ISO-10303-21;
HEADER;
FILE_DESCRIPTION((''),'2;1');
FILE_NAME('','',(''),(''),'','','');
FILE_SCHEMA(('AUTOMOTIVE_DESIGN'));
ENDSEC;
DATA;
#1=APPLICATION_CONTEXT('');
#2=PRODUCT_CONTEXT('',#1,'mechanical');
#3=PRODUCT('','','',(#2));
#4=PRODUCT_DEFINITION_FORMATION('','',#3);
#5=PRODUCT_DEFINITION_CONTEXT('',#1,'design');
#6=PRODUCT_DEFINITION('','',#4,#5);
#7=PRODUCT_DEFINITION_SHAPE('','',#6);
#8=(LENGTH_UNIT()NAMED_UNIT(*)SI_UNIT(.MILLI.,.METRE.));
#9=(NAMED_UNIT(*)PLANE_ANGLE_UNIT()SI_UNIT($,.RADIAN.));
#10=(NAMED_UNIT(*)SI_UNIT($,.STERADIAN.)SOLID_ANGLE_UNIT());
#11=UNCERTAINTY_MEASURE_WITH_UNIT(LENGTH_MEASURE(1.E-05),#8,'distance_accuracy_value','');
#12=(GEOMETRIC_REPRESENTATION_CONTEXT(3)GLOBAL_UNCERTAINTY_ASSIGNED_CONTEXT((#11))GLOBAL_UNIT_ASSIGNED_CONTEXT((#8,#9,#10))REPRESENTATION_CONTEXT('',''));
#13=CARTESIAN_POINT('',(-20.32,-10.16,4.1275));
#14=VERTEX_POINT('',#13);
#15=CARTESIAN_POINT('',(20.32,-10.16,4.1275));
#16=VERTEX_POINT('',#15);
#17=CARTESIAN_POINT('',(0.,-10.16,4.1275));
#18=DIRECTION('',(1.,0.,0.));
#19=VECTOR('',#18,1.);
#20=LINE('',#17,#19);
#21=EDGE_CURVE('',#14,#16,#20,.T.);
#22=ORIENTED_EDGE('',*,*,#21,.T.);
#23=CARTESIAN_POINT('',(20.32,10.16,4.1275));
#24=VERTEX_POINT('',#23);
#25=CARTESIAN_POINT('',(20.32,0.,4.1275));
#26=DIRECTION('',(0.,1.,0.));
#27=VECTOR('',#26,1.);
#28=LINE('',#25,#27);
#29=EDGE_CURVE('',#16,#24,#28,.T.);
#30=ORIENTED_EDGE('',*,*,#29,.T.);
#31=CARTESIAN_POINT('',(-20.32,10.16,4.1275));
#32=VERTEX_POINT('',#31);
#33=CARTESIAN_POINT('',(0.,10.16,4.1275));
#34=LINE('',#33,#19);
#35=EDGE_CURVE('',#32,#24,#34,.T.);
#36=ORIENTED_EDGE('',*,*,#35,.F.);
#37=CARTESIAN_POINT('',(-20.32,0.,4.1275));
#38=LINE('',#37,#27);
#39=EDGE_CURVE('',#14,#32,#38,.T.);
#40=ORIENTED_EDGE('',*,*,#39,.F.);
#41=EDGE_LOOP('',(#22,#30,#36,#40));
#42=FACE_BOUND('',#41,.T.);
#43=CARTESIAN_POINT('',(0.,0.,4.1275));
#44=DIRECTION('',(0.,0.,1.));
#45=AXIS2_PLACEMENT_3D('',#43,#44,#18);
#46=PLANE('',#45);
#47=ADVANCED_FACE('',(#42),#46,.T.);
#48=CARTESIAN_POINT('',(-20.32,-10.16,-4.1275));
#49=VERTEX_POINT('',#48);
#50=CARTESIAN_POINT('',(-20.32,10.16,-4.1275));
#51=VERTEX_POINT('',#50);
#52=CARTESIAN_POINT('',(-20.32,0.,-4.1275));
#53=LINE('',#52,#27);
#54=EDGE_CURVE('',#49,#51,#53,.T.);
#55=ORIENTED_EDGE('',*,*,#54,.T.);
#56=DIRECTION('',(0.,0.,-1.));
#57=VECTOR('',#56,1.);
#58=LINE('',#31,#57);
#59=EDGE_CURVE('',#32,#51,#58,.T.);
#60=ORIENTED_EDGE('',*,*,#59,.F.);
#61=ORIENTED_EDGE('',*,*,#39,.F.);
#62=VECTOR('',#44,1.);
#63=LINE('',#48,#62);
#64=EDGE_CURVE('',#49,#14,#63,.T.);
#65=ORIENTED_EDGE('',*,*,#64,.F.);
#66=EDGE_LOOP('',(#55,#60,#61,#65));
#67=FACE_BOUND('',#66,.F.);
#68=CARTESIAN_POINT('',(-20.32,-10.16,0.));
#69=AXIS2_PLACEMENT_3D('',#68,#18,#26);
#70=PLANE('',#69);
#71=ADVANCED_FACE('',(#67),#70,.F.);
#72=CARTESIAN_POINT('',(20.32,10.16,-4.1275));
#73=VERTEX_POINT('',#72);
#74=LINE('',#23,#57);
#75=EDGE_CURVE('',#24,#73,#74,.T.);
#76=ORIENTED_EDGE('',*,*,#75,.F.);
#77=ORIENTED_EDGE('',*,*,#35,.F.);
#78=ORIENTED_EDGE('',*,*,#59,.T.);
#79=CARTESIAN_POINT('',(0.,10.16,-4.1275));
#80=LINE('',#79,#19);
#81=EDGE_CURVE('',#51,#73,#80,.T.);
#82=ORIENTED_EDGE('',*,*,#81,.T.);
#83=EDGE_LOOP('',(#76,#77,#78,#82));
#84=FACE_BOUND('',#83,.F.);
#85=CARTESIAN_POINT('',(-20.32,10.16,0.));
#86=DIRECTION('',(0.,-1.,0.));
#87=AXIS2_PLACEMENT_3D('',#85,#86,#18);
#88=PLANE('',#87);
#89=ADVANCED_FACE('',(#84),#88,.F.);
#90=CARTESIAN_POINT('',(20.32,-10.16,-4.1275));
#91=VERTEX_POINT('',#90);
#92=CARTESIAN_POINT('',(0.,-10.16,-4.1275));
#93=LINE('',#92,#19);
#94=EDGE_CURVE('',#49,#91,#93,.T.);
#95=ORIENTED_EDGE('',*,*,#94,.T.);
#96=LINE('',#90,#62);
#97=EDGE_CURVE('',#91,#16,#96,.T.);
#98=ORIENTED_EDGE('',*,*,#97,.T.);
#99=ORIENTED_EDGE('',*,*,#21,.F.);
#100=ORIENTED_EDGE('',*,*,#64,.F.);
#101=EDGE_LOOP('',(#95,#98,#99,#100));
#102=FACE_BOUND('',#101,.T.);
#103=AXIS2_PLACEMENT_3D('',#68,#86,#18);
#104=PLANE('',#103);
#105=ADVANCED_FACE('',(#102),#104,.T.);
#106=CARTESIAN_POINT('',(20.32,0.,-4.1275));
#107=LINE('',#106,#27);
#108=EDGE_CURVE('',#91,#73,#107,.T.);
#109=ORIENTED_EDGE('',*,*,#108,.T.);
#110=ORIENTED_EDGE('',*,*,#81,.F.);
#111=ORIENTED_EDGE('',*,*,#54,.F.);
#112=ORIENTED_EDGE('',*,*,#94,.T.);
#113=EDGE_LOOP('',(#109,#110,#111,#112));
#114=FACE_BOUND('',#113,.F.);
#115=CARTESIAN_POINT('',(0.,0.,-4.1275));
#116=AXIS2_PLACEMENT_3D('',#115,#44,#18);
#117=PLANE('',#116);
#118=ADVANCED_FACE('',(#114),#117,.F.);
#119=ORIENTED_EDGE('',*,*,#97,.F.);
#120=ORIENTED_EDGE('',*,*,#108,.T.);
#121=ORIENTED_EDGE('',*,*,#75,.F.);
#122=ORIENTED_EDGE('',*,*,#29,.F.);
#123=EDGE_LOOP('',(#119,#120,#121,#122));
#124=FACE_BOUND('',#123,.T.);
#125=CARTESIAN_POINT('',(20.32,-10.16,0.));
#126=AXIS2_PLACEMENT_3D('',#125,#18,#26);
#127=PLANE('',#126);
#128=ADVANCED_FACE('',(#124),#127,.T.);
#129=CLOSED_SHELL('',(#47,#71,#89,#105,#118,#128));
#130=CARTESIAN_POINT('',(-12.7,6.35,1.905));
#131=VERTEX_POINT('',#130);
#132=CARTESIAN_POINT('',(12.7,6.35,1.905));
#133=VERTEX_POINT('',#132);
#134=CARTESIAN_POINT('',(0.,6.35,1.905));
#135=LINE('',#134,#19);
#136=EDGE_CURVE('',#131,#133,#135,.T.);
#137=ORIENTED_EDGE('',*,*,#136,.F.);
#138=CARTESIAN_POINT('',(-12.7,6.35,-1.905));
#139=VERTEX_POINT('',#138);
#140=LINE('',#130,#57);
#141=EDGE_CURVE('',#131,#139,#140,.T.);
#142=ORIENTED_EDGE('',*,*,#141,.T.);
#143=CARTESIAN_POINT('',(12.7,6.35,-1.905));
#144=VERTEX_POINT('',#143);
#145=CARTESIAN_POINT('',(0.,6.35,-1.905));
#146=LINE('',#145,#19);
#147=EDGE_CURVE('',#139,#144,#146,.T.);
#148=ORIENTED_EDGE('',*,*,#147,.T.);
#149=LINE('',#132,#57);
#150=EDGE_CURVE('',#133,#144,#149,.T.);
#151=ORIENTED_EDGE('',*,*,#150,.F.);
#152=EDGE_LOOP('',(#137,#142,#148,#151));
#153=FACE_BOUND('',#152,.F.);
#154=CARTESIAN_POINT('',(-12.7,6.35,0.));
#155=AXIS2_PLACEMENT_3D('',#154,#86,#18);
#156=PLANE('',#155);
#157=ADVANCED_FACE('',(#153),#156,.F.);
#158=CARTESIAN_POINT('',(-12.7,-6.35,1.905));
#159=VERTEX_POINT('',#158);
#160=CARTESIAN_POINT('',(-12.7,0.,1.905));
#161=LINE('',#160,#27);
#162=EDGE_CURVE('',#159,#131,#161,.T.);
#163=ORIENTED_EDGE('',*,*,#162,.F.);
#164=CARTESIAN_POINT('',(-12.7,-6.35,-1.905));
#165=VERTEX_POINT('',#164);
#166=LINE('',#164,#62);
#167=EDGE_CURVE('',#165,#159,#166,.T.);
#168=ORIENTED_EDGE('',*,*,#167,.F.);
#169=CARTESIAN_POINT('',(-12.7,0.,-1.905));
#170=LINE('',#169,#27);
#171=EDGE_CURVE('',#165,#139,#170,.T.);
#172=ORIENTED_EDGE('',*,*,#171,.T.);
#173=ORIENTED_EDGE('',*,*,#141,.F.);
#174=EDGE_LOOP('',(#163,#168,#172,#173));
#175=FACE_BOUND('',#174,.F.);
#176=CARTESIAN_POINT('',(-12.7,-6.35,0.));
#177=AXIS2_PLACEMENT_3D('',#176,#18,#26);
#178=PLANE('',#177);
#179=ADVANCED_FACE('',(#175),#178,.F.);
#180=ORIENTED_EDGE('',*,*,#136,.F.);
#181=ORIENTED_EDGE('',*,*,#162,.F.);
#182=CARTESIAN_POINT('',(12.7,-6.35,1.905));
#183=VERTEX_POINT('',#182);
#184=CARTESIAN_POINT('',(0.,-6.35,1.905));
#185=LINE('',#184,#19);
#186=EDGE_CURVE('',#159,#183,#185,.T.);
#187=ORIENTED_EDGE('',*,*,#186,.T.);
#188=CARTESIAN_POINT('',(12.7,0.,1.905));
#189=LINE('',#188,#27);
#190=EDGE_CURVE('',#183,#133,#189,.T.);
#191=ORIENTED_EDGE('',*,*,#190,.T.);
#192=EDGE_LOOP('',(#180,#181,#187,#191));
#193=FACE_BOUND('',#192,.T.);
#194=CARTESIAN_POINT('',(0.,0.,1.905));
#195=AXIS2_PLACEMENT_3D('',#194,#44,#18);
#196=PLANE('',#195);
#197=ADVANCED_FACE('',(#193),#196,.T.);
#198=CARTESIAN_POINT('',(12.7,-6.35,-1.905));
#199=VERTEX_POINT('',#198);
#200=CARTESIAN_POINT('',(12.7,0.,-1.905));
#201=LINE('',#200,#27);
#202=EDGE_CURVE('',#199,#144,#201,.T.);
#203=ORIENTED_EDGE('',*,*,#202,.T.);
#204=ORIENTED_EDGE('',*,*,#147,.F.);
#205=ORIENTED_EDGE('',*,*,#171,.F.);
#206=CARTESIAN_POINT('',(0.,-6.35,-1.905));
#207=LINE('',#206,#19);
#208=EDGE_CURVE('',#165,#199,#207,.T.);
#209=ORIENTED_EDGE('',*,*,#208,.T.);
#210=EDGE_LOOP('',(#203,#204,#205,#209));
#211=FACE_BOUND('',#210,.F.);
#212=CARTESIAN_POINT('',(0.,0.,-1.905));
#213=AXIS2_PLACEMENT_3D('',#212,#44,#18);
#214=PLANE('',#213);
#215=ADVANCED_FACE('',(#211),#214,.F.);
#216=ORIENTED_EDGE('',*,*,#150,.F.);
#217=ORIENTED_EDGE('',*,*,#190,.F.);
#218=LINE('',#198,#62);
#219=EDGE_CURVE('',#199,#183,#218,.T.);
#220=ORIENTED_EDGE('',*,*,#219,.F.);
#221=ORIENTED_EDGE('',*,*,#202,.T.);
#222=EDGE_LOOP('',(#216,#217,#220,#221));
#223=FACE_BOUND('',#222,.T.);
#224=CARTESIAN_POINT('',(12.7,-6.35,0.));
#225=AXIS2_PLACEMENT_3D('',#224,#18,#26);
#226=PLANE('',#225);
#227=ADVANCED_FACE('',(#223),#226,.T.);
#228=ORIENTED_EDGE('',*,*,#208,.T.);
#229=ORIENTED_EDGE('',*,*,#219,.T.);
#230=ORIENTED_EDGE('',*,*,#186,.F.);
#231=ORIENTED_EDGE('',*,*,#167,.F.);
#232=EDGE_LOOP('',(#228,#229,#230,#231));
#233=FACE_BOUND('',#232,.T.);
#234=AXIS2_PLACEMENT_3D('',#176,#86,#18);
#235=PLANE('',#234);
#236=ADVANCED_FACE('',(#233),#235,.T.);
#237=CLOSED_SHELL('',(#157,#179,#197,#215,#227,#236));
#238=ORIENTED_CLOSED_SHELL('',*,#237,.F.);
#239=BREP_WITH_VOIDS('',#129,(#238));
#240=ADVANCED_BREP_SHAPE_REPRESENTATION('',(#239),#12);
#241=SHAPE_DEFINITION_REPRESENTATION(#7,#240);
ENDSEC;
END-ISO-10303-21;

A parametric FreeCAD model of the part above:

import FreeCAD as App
import Part
import Sketcher

V = App.Vector
Q = App.Units.Quantity

doc = App.newDocument("Part")
body = doc.addObject("PartDesign::Body", "Body")

# Sketch on XY plane
sketch1 = body.newObject("Sketcher::SketchObject", "Sketch")
sketch1.AttachmentSupport = (doc.getObject("XY_Plane"), [""])
sketch1.MapMode = "FlatFace"
sketch1.addGeometry(Part.LineSegment(V(-20.32, 10.16, 0), V(-20.32, -10.16, 0)), False)
sketch1.addGeometry(Part.LineSegment(V(-20.32, -10.16, 0), V(20.32, -10.16, 0)), False)
sketch1.addGeometry(Part.LineSegment(V(20.32, -10.16, 0), V(20.32, 10.16, 0)), False)
sketch1.addGeometry(Part.LineSegment(V(20.32, 10.16, 0), V(-20.32, 10.16, 0)), False)
sketch1.addConstraint(Sketcher.Constraint("Coincident", 0, 2, 1, 1))
sketch1.addConstraint(Sketcher.Constraint("Coincident", 1, 2, 2, 1))
sketch1.addConstraint(Sketcher.Constraint("Coincident", 2, 2, 3, 1))
sketch1.addConstraint(Sketcher.Constraint("Coincident", 3, 2, 0, 1))
sketch1.addConstraint(Sketcher.Constraint("Vertical", 0))
sketch1.addConstraint(Sketcher.Constraint("Horizontal", 1))
sketch1.addConstraint(Sketcher.Constraint("Vertical", 2))
sketch1.addConstraint(Sketcher.Constraint("Horizontal", 3))
sketch1.addConstraint(Sketcher.Constraint("Symmetric", 0, 2, 2, 2, -1, 1))
sketch1.addConstraint(Sketcher.Constraint("DistanceX", 1, 1, 1, 2, Q("1.6 in")))
sketch1.addConstraint(Sketcher.Constraint("DistanceY", 0, 2, 0, 1, Q("0.8 in")))
pad1 = body.newObject("PartDesign::Pad", "Pad")
pad1.Profile = sketch1
pad1.Length = Q("0.325 in")
pad1.Midplane = True

# Sketch on XY plane
sketch2 = body.newObject("Sketcher::SketchObject", "Sketch001")
sketch2.AttachmentSupport = (doc.getObject("XY_Plane"), [""])
sketch2.MapMode = "FlatFace"
sketch2.addGeometry(Part.LineSegment(V(-12.7, 6.35, 0), V(-12.7, -6.35, 0)), False)
sketch2.addGeometry(Part.LineSegment(V(-12.7, -6.35, 0), V(12.7, -6.35, 0)), False)
sketch2.addGeometry(Part.LineSegment(V(12.7, -6.35, 0), V(12.7, 6.35, 0)), False)
sketch2.addGeometry(Part.LineSegment(V(12.7, 6.35, 0), V(-12.7, 6.35, 0)), False)
sketch2.addConstraint(Sketcher.Constraint("Coincident", 0, 2, 1, 1))
sketch2.addConstraint(Sketcher.Constraint("Coincident", 1, 2, 2, 1))
sketch2.addConstraint(Sketcher.Constraint("Coincident", 2, 2, 3, 1))
sketch2.addConstraint(Sketcher.Constraint("Coincident", 3, 2, 0, 1))
sketch2.addConstraint(Sketcher.Constraint("Vertical", 0))
sketch2.addConstraint(Sketcher.Constraint("Horizontal", 1))
sketch2.addConstraint(Sketcher.Constraint("Vertical", 2))
sketch2.addConstraint(Sketcher.Constraint("Horizontal", 3))
sketch2.addConstraint(Sketcher.Constraint("Symmetric", 0, 2, 2, 2, -1, 1))
sketch2.addConstraint(Sketcher.Constraint("DistanceX", 1, 1, 1, 2, Q("1 in")))
sketch2.addConstraint(Sketcher.Constraint("DistanceY", 0, 2, 0, 1, Q("0.5 in")))
pocket1 = body.newObject("PartDesign::Pocket", "Pocket")
pocket1.Profile = sketch2
pocket1.Length = Q("0.15 in")
pocket1.Midplane = True

doc.recompute()
